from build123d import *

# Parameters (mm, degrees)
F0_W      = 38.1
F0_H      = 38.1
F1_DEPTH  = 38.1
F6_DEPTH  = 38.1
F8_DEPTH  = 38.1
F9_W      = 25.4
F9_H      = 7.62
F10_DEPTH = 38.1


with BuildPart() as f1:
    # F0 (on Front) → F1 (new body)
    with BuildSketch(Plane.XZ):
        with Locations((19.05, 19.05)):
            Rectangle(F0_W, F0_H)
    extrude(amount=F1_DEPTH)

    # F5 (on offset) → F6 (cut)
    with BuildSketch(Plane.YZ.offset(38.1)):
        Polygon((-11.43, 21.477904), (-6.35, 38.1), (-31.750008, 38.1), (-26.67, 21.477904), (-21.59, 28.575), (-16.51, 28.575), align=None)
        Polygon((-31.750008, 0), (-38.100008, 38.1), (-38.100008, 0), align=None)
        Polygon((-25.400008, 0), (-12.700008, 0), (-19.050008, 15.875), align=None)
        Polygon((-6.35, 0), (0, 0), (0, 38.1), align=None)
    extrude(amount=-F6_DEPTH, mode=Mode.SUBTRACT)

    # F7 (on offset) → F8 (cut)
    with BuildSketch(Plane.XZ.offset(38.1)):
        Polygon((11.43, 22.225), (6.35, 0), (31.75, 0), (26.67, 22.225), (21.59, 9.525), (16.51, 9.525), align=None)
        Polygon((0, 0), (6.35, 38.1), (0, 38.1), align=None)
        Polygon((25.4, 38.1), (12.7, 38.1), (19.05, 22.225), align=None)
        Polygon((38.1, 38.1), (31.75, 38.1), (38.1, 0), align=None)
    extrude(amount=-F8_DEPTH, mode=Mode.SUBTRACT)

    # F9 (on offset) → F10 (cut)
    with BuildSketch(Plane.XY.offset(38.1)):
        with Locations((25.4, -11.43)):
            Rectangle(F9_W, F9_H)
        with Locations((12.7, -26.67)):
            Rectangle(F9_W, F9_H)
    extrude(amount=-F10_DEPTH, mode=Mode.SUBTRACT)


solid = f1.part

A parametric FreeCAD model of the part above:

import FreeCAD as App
import Part
import Sketcher
from FreeCAD import Vector
Q = App.Units.Quantity

doc = App.newDocument("Part")
params = doc.addObject("Spreadsheet::Sheet", "Params")
for row, (alias, value) in enumerate([
    ("sketch1_width", "1.5 in"),
    ("pad1_length", "1.5 in"),
    ("sketch2_width", "0.2 in"),
    ("sketch2_width2", "0.5 in"),
    ("sketch2_height", "1.5 in"),
    ("sketch2_width3", "0.25 in"),
    ("pocket1_length", "1.5 in"),
    ("sketch3_width", "1 in"),
    ("sketch3_width2", "0.2 in"),
    ("sketch3_width3", "0.5 in"),
    ("sketch3_height", "1.5 in"),
    ("pocket2_length", "1.5 in"),
    ("sketch4_width", "1 in"),
    ("sketch4_height", "0.3 in"),
    ("pocket3_length", "1.5 in"),
], start=1):
    params.set(f"A{row}", alias)
    params.set(f"B{row}", "=" + value)
    params.setAlias(f"B{row}", alias)

body = doc.addObject("PartDesign::Body", "Body")

# Sketch on XZ plane
sketch1 = body.newObject("Sketcher::SketchObject", "Sketch")
sketch1.AttachmentSupport = (doc.getObject("XZ_Plane"), [""])
sketch1.MapMode = "FlatFace"
sketch1.addGeometry([
    Part.LineSegment(Vector(0, 38, 0), Vector(0, 0, 0)),
    Part.LineSegment(Vector(0, 0, 0), Vector(38, 0, 0)),
    Part.LineSegment(Vector(38, 0, 0), Vector(38, 38, 0)),
    Part.LineSegment(Vector(38, 38, 0), Vector(0, 38, 0)),
], False)
sketch1.addConstraint([
    Sketcher.Constraint("Coincident", 0, 2, 1, 1),
    Sketcher.Constraint("Coincident", 1, 2, 2, 1),
    Sketcher.Constraint("Coincident", 2, 2, 3, 1),
    Sketcher.Constraint("Coincident", 3, 2, 0, 1),
    Sketcher.Constraint("Vertical", 0),
    Sketcher.Constraint("Horizontal", 1),
    Sketcher.Constraint("Vertical", 2),
    Sketcher.Constraint("Horizontal", 3),
    Sketcher.Constraint("Coincident", 0, 2, -1, 1),
    Sketcher.Constraint("Equal", 3, 0),
    Sketcher.Constraint("DistanceX", 1, 1, 1, 2, Q("1.5 in")),
])
sketch1.setExpression("Constraints[10]", "Params.sketch1_width")
pad1 = body.newObject("PartDesign::Pad", "Pad")
pad1.Profile = sketch1
pad1.setExpression("Length", "Params.pad1_length")

# Sketch on YZ plane
sketch2 = body.newObject("Sketcher::SketchObject", "Sketch001")
sketch2.AttachmentSupport = (doc.getObject("YZ_Plane"), [""])
sketch2.MapMode = "FlatFace"
sketch2.AttachmentOffset = App.Placement(Vector(0, 0, 1.5 * 25.4), App.Rotation())
sketch2.addGeometry([
    Part.LineSegment(Vector(-11, 21, 0), Vector(-6, 38, 0)),  # 0
    Part.LineSegment(Vector(-6, 38, 0), Vector(-32, 38, 0)),  # 1
    Part.LineSegment(Vector(-32, 38, 0), Vector(-27, 21, 0)),  # 2
    Part.LineSegment(Vector(-27, 21, 0), Vector(-22, 29, 0)),  # 3
    Part.LineSegment(Vector(-22, 29, 0), Vector(-17, 29, 0)),  # 4
    Part.LineSegment(Vector(-17, 29, 0), Vector(-11, 21, 0)),  # 5
    Part.LineSegment(Vector(-32, 0, 0), Vector(-38, 38, 0)),  # 6
    Part.LineSegment(Vector(-38, 38, 0), Vector(-38, 0, 0)),  # 7
    Part.LineSegment(Vector(-38, 0, 0), Vector(-32, 0, 0)),  # 8
    Part.LineSegment(Vector(-25, 0, 0), Vector(-13, 0, 0)),  # 9
    Part.LineSegment(Vector(-13, 0, 0), Vector(-19, 16, 0)),  # 10
    Part.LineSegment(Vector(-19, 16, 0), Vector(-25, 0, 0)),  # 11
    Part.LineSegment(Vector(-6, 0, 0), Vector(0, 0, 0)),  # 12
    Part.LineSegment(Vector(0, 0, 0), Vector(0, 38, 0)),  # 13
    Part.LineSegment(Vector(0, 38, 0), Vector(-6, 0, 0)),  # 14
], False)
sketch2.addConstraint([
    Sketcher.Constraint("Coincident", 0, 2, 1, 1),
    Sketcher.Constraint("Coincident", 1, 2, 2, 1),
    Sketcher.Constraint("Coincident", 2, 2, 3, 1),
    Sketcher.Constraint("Coincident", 3, 2, 4, 1),
    Sketcher.Constraint("Coincident", 4, 2, 5, 1),
    Sketcher.Constraint("Coincident", 5, 2, 0, 1),
    Sketcher.Constraint("Coincident", 6, 2, 7, 1),
    Sketcher.Constraint("Coincident", 7, 2, 8, 1),
    Sketcher.Constraint("Coincident", 8, 2, 6, 1),
    Sketcher.Constraint("Coincident", 9, 2, 10, 1),
    Sketcher.Constraint("Coincident", 10, 2, 11, 1),
    Sketcher.Constraint("Coincident", 11, 2, 9, 1),
    Sketcher.Constraint("Coincident", 12, 2, 13, 1),
    Sketcher.Constraint("Coincident", 13, 2, 14, 1),
    Sketcher.Constraint("Coincident", 14, 2, 12, 1),
    Sketcher.Constraint("Horizontal", 1),
    Sketcher.Constraint("Horizontal", 4),
    Sketcher.Constraint("Vertical", 7),
    Sketcher.Constraint("Horizontal", 8),
    Sketcher.Constraint("Horizontal", 9),
    Sketcher.Constraint("Horizontal", 12),
    Sketcher.Constraint("Vertical", 13),
    Sketcher.Constraint("Coincident", 12, 2, -1, 1),
    Sketcher.Constraint("PointOnObject", 7, 2, -1),
    Sketcher.Constraint("PointOnObject", 9, 2, -1),
    Sketcher.Constraint("Horizontal", 2, 2, 5, 2),
    Sketcher.Constraint("Horizontal", 1, 2, 6, 2),
    Sketcher.Constraint("Horizontal", 6, 2, 13, 2),
    Sketcher.Constraint("Vertical", 1, 2, 8, 2),
    Sketcher.Constraint("Vertical", 0, 2, 14, 2),
    Sketcher.Constraint("Equal", 8, 12),
    Sketcher.Constraint("Equal", 3, 5),
    Sketcher.Constraint("Equal", 10, 11),
    Sketcher.Constraint("DistanceX", 4, 1, 4, 2, Q("0.2 in")),
    Sketcher.Constraint("DistanceX", 9, 1, 9, 2, Q("0.5 in")),
    Sketcher.Constraint("DistanceY", 7, 2, 7, 1, Q("1.5 in")),
    Sketcher.Constraint("DistanceX", 7, 2, 9, 2, Q("1 in")),
    Sketcher.Constraint("DistanceX", 8, 1, 8, 2, Q("0.25 in")),
    Sketcher.Constraint("DistanceX", 2, 2, 0, 2, Q("0.8 in")),
    Sketcher.Constraint("DistanceX", 2, 2, 3, 2, Q("0.2 in")),
    Sketcher.Constraint("DistanceY", 10, 2, 3, 2, Q("0.5 in")),
    Sketcher.Constraint("DistanceY", -1, 1, 3, 2, Q("1.125 in")),
    Sketcher.Constraint("Distance", 2, Q("17.38104 mm")),
    Sketcher.Constraint("Distance", 3, Q("8.727839 mm")),
])
sketch2.setExpression("Constraints[33]", "Params.sketch2_width")
sketch2.setExpression("Constraints[34]", "Params.sketch2_width2")
sketch2.setExpression("Constraints[35]", "Params.sketch2_height")
sketch2.setExpression("Constraints[37]", "Params.sketch2_width3")
pocket1 = body.newObject("PartDesign::Pocket", "Pocket")
pocket1.Profile = sketch2
pocket1.setExpression("Length", "Params.pocket1_length")

# Sketch on XZ plane
sketch3 = body.newObject("Sketcher::SketchObject", "Sketch002")
sketch3.AttachmentSupport = (doc.getObject("XZ_Plane"), [""])
sketch3.MapMode = "FlatFace"
sketch3.AttachmentOffset = App.Placement(Vector(0, 0, 1.5 * 25.4), App.Rotation())
sketch3.addGeometry([
    Part.LineSegment(Vector(11, 22, 0), Vector(6, 0, 0)),  # 0
    Part.LineSegment(Vector(6, 0, 0), Vector(32, 0, 0)),  # 1
    Part.LineSegment(Vector(32, 0, 0), Vector(27, 22, 0)),  # 2
    Part.LineSegment(Vector(27, 22, 0), Vector(22, 10, 0)),  # 3
    Part.LineSegment(Vector(22, 10, 0), Vector(17, 10, 0)),  # 4
    Part.LineSegment(Vector(17, 10, 0), Vector(11, 22, 0)),  # 5
    Part.LineSegment(Vector(0, 0, 0), Vector(6, 38, 0)),  # 6
    Part.LineSegment(Vector(6, 38, 0), Vector(0, 38, 0)),  # 7
    Part.LineSegment(Vector(0, 38, 0), Vector(0, 0, 0)),  # 8
    Part.LineSegment(Vector(25, 38, 0), Vector(13, 38, 0)),  # 9
    Part.LineSegment(Vector(13, 38, 0), Vector(19, 22, 0)),  # 10
    Part.LineSegment(Vector(19, 22, 0), Vector(25, 38, 0)),  # 11
    Part.LineSegment(Vector(38, 38, 0), Vector(32, 38, 0)),  # 12
    Part.LineSegment(Vector(32, 38, 0), Vector(38, 0, 0)),  # 13
    Part.LineSegment(Vector(38, 0, 0), Vector(38, 38, 0)),  # 14
], False)
sketch3.addConstraint([
    Sketcher.Constraint("Coincident", 0, 2, 1, 1),
    Sketcher.Constraint("Coincident", 1, 2, 2, 1),
    Sketcher.Constraint("Coincident", 2, 2, 3, 1),
    Sketcher.Constraint("Coincident", 3, 2, 4, 1),
    Sketcher.Constraint("Coincident", 4, 2, 5, 1),
    Sketcher.Constraint("Coincident", 5, 2, 0, 1),
    Sketcher.Constraint("Coincident", 6, 2, 7, 1),
    Sketcher.Constraint("Coincident", 7, 2, 8, 1),
    Sketcher.Constraint("Coincident", 8, 2, 6, 1),
    Sketcher.Constraint("Coincident", 9, 2, 10, 1),
    Sketcher.Constraint("Coincident", 10, 2, 11, 1),
    Sketcher.Constraint("Coincident", 11, 2, 9, 1),
    Sketcher.Constraint("Coincident", 12, 2, 13, 1),
    Sketcher.Constraint("Coincident", 13, 2, 14, 1),
    Sketcher.Constraint("Coincident", 14, 2, 12, 1),
    Sketcher.Constraint("Horizontal", 1),
    Sketcher.Constraint("Horizontal", 4),
    Sketcher.Constraint("Horizontal", 7),
    Sketcher.Constraint("Vertical", 8),
    Sketcher.Constraint("Horizontal", 9),
    Sketcher.Constraint("Horizontal", 12),
    Sketcher.Constraint("Vertical", 14),
    Sketcher.Constraint("Coincident", 8, 2, -1, 1),
    Sketcher.Constraint("PointOnObject", 0, 2, -1),
    Sketcher.Constraint("PointOnObject", 13, 2, -1),
    Sketcher.Constraint("Parallel", 5, 10),
    Sketcher.Constraint("Parallel", 3, 11),
    Sketcher.Constraint("Horizontal", 2, 2, 5, 2),
    Sketcher.Constraint("Horizontal", 7, 2, 9, 2),
    Sketcher.Constraint("Horizontal", 5, 2, 10, 2),
    Sketcher.Constraint("Horizontal", 11, 2, 12, 2),
    Sketcher.Constraint("Vertical", 0, 2, 6, 2),
    Sketcher.Constraint("Vertical", 1, 2, 12, 2),
    Sketcher.Constraint("Equal", 7, 12),
    Sketcher.Constraint("Equal", 0, 2),
    Sketcher.Constraint("Equal", 3, 5),
    Sketcher.Constraint("DistanceX", 1, 1, 1, 2, Q("1 in")),
    Sketcher.Constraint("DistanceX", 4, 2, 4, 1, Q("0.2 in")),
    Sketcher.Constraint("DistanceX", 9, 2, 9, 1, Q("0.5 in")),
    Sketcher.Constraint("DistanceY", 8, 2, 8, 1, Q("1.5 in")),
    Sketcher.Constraint("DistanceX", -1, 1, 11, 2, Q("1 in")),
    Sketcher.Constraint("DistanceX", 9, 2, 14, 2, Q("1 in")),
    Sketcher.Constraint("DistanceX", 2, 2, 1, 2, Q("0.2 in")),
    Sketcher.Constraint("DistanceY", 3, 2, 2, 2, Q("0.5 in")),
])
sketch3.setExpression("Constraints[36]", "Params.sketch3_width")
sketch3.setExpression("Constraints[37]", "Params.sketch3_width2")
sketch3.setExpression("Constraints[38]", "Params.sketch3_width3")
sketch3.setExpression("Constraints[39]", "Params.sketch3_height")
pocket2 = body.newObject("PartDesign::Pocket", "Pocket001")
pocket2.Profile = sketch3
pocket2.setExpression("Length", "Params.pocket2_length")

# Sketch on XY plane
sketch4 = body.newObject("Sketcher::SketchObject", "Sketch003")
sketch4.AttachmentSupport = (doc.getObject("XY_Plane"), [""])
sketch4.MapMode = "FlatFace"
sketch4.AttachmentOffset = App.Placement(Vector(0, 0, 1.5 * 25.4), App.Rotation())
sketch4.addGeometry([
    Part.LineSegment(Vector(13, -8, 0), Vector(13, -15, 0)),  # 0
    Part.LineSegment(Vector(13, -15, 0), Vector(38, -15, 0)),  # 1
    Part.LineSegment(Vector(38, -15, 0), Vector(38, -8, 0)),  # 2
    Part.LineSegment(Vector(38, -8, 0), Vector(13, -8, 0)),  # 3
    Part.LineSegment(Vector(0, -23, 0), Vector(0, -30, 0)),  # 4
    Part.LineSegment(Vector(0, -30, 0), Vector(25, -30, 0)),  # 5
    Part.LineSegment(Vector(25, -30, 0), Vector(25, -23, 0)),  # 6
    Part.LineSegment(Vector(25, -23, 0), Vector(0, -23, 0)),  # 7
], False)
sketch4.addConstraint([
    Sketcher.Constraint("Coincident", 0, 2, 1, 1),
    Sketcher.Constraint("Coincident", 1, 2, 2, 1),
    Sketcher.Constraint("Coincident", 2, 2, 3, 1),
    Sketcher.Constraint("Coincident", 3, 2, 0, 1),
    Sketcher.Constraint("Coincident", 4, 2, 5, 1),
    Sketcher.Constraint("Coincident", 5, 2, 6, 1),
    Sketcher.Constraint("Coincident", 6, 2, 7, 1),
    Sketcher.Constraint("Coincident", 7, 2, 4, 1),
    Sketcher.Constraint("Vertical", 0),
    Sketcher.Constraint("Horizontal", 1),
    Sketcher.Constraint("Vertical", 2),
    Sketcher.Constraint("Horizontal", 3),
    Sketcher.Constraint("Vertical", 4),
    Sketcher.Constraint("Horizontal", 5),
    Sketcher.Constraint("Vertical", 6),
    Sketcher.Constraint("Horizontal", 7),
    Sketcher.Constraint("PointOnObject", 4, 2, -2),
    Sketcher.Constraint("Equal", 3, 5),
    Sketcher.Constraint("Equal", 2, 4),
    Sketcher.Constraint("DistanceX", 1, 1, 1, 2, Q("1 in")),
    Sketcher.Constraint("DistanceY", 0, 2, 0, 1, Q("0.3 in")),
    Sketcher.Constraint("DistanceX", -1, 1, 0, 2, Q("0.5 in")),
    Sketcher.Constraint("DistanceY", 0, 2, -1, 1, Q("0.6 in")),
    Sketcher.Constraint("DistanceY", 4, 2, -1, 1, Q("1.2 in")),
])
sketch4.setExpression("Constraints[19]", "Params.sketch4_width")
sketch4.setExpression("Constraints[20]", "Params.sketch4_height")
pocket3 = body.newObject("PartDesign::Pocket", "Pocket002")
pocket3.Profile = sketch4
pocket3.setExpression("Length", "Params.pocket3_length")

doc.recompute()
